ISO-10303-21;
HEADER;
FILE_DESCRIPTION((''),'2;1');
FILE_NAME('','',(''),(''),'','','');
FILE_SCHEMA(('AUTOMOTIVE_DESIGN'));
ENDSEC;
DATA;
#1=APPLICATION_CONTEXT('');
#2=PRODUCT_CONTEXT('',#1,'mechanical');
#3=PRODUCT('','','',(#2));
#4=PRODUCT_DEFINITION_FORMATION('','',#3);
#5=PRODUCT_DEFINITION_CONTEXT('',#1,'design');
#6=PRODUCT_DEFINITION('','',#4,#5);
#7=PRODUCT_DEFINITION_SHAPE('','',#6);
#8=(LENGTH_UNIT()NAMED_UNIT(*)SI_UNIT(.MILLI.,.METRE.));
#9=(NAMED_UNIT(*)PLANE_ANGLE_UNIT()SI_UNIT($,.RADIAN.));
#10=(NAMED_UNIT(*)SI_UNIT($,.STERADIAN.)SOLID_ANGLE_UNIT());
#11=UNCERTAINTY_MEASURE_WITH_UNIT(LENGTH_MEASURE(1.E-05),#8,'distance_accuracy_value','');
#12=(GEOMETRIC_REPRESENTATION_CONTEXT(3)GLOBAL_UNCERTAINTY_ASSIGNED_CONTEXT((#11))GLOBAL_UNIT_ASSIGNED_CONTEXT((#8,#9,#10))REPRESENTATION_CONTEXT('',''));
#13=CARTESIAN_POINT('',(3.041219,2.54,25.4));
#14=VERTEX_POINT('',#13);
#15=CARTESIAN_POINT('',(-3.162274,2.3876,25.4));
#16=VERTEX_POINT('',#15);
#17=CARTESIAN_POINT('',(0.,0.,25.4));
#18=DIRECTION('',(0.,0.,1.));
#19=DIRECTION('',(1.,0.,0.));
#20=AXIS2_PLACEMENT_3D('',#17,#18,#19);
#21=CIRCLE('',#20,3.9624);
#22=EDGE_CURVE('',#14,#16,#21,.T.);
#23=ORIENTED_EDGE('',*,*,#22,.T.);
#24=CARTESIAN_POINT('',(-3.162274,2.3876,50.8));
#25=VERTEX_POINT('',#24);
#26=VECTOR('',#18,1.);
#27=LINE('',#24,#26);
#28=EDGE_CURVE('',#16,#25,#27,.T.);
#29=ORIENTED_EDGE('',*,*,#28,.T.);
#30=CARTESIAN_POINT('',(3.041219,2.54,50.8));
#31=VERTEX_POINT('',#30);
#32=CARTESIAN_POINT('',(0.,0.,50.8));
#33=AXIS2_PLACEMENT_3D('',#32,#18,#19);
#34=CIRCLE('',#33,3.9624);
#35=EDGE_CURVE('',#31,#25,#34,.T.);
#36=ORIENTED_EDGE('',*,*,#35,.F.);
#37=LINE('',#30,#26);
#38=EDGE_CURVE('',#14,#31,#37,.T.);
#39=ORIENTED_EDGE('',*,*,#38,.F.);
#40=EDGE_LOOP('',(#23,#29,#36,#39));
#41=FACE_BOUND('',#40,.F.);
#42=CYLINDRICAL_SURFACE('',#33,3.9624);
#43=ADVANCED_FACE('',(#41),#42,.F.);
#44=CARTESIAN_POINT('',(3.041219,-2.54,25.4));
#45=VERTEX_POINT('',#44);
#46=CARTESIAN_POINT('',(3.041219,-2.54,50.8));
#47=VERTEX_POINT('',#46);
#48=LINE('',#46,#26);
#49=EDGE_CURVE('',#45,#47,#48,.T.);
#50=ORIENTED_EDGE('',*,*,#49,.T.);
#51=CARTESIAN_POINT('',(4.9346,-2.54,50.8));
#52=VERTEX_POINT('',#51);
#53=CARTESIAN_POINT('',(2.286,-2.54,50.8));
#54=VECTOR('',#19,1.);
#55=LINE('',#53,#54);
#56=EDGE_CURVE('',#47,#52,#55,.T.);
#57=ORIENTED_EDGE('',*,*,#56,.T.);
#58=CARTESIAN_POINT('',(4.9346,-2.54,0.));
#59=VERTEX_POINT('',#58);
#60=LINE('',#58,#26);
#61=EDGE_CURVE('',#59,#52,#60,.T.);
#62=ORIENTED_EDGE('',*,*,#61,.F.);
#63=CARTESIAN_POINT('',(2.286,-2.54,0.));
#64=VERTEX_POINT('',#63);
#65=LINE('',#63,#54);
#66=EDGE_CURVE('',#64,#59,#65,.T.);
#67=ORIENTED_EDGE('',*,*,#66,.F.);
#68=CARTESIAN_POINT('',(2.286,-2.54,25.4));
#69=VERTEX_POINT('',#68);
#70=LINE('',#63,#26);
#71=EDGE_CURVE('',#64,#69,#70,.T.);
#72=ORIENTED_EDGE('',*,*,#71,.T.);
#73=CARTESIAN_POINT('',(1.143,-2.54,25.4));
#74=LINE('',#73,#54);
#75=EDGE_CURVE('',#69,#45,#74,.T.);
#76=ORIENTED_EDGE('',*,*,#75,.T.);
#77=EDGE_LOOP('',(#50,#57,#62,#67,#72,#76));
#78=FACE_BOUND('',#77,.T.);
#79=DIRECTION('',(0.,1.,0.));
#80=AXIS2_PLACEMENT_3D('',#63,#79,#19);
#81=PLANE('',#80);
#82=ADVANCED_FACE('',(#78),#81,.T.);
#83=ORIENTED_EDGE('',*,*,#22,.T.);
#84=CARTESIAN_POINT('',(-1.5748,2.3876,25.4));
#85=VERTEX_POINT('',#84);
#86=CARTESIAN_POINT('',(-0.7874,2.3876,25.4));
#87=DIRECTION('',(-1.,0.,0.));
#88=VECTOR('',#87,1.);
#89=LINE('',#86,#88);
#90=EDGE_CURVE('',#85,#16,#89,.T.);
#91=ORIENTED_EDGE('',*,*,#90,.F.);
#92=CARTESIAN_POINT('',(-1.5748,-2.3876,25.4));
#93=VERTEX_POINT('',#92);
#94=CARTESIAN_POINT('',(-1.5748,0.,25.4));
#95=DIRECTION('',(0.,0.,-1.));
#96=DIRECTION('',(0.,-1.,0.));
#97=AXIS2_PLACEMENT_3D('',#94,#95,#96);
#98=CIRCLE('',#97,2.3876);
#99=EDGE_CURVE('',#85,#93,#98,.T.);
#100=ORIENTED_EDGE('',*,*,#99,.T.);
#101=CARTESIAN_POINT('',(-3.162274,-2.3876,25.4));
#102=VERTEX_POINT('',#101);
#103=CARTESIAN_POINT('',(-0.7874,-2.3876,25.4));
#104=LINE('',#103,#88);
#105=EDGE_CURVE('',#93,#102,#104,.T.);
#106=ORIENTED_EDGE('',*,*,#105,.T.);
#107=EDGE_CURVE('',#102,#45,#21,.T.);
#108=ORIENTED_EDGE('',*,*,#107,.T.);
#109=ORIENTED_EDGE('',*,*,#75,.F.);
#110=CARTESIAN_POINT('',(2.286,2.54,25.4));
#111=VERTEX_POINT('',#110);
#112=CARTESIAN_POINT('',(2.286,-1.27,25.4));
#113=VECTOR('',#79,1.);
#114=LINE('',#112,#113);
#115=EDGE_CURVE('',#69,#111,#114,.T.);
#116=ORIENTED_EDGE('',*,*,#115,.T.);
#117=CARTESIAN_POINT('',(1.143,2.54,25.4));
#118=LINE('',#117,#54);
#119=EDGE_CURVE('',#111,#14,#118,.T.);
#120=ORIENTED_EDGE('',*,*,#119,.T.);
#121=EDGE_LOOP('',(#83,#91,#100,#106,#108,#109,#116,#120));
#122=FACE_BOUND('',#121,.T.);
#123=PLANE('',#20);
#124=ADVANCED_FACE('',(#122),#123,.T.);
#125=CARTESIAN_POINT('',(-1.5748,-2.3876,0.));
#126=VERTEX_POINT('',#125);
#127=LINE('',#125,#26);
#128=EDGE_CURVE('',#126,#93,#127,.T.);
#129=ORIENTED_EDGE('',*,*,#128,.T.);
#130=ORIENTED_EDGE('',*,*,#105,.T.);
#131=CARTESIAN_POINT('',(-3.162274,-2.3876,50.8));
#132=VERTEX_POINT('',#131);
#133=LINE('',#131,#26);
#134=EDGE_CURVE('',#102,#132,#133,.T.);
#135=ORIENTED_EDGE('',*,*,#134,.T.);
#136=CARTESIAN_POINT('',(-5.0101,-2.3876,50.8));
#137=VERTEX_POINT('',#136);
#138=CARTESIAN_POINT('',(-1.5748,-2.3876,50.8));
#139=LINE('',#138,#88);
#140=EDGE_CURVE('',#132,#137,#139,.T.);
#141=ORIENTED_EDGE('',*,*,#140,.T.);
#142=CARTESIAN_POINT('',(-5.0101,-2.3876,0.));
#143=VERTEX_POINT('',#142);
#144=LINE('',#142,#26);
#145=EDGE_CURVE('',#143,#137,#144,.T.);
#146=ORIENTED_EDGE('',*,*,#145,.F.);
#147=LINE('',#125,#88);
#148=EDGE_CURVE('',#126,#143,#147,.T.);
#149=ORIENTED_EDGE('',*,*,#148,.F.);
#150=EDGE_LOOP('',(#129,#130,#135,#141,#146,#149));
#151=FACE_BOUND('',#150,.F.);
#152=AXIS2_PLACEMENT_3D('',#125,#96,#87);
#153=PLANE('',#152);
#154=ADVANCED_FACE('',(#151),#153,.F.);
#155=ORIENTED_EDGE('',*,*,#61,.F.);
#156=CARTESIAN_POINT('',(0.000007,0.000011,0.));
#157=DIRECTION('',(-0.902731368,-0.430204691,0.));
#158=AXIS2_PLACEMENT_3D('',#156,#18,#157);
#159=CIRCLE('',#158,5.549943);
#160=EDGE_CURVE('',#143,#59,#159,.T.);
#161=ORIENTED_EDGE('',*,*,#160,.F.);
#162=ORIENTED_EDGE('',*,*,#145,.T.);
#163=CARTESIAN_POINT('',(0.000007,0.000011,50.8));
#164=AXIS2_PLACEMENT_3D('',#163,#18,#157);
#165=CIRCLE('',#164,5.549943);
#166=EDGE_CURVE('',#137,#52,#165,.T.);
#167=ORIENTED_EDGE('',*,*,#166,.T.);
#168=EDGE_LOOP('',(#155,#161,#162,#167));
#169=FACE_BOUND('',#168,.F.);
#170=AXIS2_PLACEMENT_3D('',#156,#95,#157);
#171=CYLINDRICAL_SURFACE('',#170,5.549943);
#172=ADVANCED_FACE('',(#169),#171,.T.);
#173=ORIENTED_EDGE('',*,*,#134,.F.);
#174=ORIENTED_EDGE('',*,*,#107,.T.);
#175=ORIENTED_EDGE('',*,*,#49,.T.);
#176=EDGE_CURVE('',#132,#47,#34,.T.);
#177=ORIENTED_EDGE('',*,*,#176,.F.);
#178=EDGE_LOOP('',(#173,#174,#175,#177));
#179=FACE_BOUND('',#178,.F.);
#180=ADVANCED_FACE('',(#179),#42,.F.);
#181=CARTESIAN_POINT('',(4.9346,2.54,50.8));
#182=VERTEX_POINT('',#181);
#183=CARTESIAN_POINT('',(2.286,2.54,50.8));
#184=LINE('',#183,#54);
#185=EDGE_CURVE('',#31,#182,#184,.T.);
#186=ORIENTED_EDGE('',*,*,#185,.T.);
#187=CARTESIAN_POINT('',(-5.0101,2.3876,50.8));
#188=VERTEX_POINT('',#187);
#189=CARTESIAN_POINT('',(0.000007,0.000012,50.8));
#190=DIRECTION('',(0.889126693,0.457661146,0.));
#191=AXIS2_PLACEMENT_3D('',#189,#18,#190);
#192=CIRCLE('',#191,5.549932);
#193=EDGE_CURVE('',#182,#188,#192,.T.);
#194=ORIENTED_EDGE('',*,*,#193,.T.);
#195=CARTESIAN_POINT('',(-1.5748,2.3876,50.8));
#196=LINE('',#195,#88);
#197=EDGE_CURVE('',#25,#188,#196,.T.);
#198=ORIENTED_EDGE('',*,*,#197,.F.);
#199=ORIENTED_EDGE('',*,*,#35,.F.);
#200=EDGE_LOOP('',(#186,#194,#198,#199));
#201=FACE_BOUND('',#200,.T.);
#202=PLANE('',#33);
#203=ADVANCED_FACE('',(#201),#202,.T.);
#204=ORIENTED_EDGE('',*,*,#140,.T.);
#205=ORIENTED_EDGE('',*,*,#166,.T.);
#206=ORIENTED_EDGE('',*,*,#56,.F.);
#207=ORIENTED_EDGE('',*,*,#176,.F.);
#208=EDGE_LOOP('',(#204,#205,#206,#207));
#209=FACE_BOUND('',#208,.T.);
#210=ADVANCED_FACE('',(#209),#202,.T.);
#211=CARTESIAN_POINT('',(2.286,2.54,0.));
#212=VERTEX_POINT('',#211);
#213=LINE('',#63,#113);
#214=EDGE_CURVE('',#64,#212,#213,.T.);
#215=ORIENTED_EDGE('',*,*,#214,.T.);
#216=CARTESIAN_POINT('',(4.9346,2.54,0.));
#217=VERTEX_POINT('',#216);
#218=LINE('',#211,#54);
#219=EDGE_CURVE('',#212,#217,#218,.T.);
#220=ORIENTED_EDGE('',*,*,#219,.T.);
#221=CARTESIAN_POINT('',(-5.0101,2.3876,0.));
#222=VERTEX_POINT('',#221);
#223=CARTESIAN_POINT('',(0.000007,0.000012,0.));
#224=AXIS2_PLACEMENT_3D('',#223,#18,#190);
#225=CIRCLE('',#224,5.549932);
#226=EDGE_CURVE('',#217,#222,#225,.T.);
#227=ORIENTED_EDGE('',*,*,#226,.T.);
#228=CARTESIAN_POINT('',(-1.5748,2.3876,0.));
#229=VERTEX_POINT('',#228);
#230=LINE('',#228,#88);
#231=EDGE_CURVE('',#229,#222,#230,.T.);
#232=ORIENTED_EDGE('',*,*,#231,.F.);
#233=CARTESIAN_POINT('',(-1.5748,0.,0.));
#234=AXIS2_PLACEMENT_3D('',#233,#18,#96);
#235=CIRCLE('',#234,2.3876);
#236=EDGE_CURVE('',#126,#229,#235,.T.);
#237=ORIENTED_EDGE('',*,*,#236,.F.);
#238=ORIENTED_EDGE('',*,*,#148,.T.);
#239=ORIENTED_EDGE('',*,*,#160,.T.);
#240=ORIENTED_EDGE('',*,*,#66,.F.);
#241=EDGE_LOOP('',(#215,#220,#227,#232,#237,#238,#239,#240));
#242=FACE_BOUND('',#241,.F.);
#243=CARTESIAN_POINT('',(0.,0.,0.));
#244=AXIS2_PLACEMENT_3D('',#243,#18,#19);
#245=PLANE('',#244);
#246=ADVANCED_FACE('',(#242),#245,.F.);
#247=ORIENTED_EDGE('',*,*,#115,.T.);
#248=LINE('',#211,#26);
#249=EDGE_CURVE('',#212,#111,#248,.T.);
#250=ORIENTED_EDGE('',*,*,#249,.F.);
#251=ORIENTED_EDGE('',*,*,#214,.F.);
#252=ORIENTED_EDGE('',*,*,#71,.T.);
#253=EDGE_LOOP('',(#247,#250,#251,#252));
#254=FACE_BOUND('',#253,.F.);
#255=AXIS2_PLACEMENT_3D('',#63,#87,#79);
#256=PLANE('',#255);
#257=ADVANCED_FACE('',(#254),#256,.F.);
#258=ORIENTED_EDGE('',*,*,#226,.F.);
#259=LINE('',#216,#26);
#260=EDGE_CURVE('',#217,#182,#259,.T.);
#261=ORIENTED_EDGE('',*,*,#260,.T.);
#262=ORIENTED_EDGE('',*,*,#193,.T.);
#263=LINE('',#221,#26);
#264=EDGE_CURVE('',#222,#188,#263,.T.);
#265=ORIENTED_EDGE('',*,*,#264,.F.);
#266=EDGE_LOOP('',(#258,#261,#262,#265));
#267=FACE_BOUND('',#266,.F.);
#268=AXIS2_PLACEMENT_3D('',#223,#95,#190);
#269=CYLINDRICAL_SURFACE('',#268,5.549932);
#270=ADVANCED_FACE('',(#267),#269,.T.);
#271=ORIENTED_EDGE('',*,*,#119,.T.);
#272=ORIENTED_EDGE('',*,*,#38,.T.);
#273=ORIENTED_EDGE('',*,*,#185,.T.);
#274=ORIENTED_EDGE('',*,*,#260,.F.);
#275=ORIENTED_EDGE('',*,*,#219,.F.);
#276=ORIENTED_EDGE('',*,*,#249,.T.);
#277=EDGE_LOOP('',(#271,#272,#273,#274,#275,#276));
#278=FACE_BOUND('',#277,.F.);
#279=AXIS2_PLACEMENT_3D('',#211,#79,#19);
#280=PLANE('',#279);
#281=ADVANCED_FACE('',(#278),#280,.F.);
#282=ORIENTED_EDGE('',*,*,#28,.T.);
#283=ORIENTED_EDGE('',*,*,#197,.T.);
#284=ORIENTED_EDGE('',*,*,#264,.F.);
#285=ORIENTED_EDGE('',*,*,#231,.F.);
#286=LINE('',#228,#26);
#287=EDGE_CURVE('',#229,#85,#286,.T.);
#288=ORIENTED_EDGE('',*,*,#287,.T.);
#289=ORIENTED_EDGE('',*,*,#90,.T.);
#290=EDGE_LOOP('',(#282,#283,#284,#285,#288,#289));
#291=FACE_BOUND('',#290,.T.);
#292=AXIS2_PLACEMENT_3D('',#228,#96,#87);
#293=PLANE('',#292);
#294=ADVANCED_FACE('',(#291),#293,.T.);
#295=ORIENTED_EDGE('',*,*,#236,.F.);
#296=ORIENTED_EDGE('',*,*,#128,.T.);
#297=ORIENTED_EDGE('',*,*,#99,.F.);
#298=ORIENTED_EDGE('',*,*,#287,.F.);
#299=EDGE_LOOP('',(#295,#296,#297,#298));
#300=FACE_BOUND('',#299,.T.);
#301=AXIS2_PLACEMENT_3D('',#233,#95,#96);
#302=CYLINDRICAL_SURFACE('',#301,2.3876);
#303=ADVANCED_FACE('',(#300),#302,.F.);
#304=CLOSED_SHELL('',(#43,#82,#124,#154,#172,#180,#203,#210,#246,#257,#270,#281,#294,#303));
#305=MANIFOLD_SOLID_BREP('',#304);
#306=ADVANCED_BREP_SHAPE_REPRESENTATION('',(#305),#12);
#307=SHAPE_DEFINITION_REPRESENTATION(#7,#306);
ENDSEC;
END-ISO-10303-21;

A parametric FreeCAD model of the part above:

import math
import FreeCAD as App
import Part
import Sketcher
from FreeCAD import Vector
Q = App.Units.Quantity

doc = App.newDocument("Part")
body = doc.addObject("PartDesign::Body", "Body")

sketch1 = body.newObject("Sketcher::SketchObject", "Sketch")
sketch1.AttachmentSupport = (doc.getObject("XY_Plane"), [""])
sketch1.MapMode = "FlatFace"
sketch1.addGeometry([
    Part.ArcOfCircle(Part.Circle(Vector(-1.6, 0, 0), Vector(0, 0, 1), 2.4), math.radians(-90), math.radians(90)),
    Part.LineSegment(Vector(-1.6, -2.4, 0), Vector(-5, -2.4, 0)),
    Part.ArcOfCircle(Part.Circle(Vector(0, 0, 0), Vector(0, 0, 1), 5.5), math.radians(-155), math.radians(-27)),
    Part.LineSegment(Vector(4.9, -2.5, 0), Vector(2.3, -2.5, 0)),
    Part.LineSegment(Vector(2.3, -2.5, 0), Vector(2.3, 2.5, 0)),
    Part.LineSegment(Vector(2.3, 2.5, 0), Vector(4.9, 2.5, 0)),
    Part.ArcOfCircle(Part.Circle(Vector(0, 0, 0), Vector(0, 0, 1), 5.5), math.radians(27), math.radians(155)),
    Part.LineSegment(Vector(-5, 2.4, 0), Vector(-1.6, 2.4, 0)),
], False)
sketch1.addConstraint([
    Sketcher.Constraint("Tangent", 0, 1, 1, 1),
    Sketcher.Constraint("Coincident", 1, 2, 2, 1),
    Sketcher.Constraint("Coincident", 2, 2, 3, 1),
    Sketcher.Constraint("Coincident", 3, 2, 4, 1),
    Sketcher.Constraint("Coincident", 4, 2, 5, 1),
    Sketcher.Constraint("Coincident", 5, 2, 6, 1),
    Sketcher.Constraint("Coincident", 6, 2, 7, 1),
    Sketcher.Constraint("Tangent", 7, 2, 0, 2),
    Sketcher.Constraint("Horizontal", 1),
    Sketcher.Constraint("Horizontal", 3),
    Sketcher.Constraint("Vertical", 4),
    Sketcher.Constraint("Horizontal", 5),
    Sketcher.Constraint("Horizontal", 7),
    Sketcher.Constraint("Coincident", 2, 3, -1, 1),
    Sketcher.Constraint("Coincident", 6, 3, -1, 1),
    Sketcher.Constraint("Equal", 2, 6),
    Sketcher.Constraint("PointOnObject", 0, 3, -1),
    Sketcher.Constraint("Vertical", 2, 2, 5, 2),
    Sketcher.Constraint("DistanceY", 4, 1, 4, 2, Q("0.2 in")),
    Sketcher.Constraint("Radius", 0, Q("0.094 in")),
    Sketcher.Constraint("Radius", 2, Q("0.2185 in")),
    Sketcher.Constraint("DistanceX", -1, 1, 3, 2, Q("0.09 in")),
    Sketcher.Constraint("DistanceX", 0, 3, -1, 1, Q("0.062 in")),
])
pad1 = body.newObject("PartDesign::Pad", "Pad")
pad1.Profile = sketch1
pad1.Length = Q("2 in")

sketch2 = body.newObject("Sketcher::SketchObject", "Sketch001")
sketch2.AttachmentSupport = (doc.getObject("XY_Plane"), [""])
sketch2.MapMode = "FlatFace"
sketch2.AttachmentOffset = App.Placement(Vector(0, 0, 2 * 25.4), App.Rotation())
sketch2.addGeometry(Part.Circle(Vector(0, 0, 0), Vector(0, 0, 1), 4), False)
sketch2.addConstraint([
    Sketcher.Constraint("Coincident", 0, 3, -1, 1),
    Sketcher.Constraint("Diameter", 0, Q("0.312 in")),
])
pocket1 = body.newObject("PartDesign::Pocket", "Pocket")
pocket1.Profile = sketch2
pocket1.Length = Q("1 in")

doc.recompute()
